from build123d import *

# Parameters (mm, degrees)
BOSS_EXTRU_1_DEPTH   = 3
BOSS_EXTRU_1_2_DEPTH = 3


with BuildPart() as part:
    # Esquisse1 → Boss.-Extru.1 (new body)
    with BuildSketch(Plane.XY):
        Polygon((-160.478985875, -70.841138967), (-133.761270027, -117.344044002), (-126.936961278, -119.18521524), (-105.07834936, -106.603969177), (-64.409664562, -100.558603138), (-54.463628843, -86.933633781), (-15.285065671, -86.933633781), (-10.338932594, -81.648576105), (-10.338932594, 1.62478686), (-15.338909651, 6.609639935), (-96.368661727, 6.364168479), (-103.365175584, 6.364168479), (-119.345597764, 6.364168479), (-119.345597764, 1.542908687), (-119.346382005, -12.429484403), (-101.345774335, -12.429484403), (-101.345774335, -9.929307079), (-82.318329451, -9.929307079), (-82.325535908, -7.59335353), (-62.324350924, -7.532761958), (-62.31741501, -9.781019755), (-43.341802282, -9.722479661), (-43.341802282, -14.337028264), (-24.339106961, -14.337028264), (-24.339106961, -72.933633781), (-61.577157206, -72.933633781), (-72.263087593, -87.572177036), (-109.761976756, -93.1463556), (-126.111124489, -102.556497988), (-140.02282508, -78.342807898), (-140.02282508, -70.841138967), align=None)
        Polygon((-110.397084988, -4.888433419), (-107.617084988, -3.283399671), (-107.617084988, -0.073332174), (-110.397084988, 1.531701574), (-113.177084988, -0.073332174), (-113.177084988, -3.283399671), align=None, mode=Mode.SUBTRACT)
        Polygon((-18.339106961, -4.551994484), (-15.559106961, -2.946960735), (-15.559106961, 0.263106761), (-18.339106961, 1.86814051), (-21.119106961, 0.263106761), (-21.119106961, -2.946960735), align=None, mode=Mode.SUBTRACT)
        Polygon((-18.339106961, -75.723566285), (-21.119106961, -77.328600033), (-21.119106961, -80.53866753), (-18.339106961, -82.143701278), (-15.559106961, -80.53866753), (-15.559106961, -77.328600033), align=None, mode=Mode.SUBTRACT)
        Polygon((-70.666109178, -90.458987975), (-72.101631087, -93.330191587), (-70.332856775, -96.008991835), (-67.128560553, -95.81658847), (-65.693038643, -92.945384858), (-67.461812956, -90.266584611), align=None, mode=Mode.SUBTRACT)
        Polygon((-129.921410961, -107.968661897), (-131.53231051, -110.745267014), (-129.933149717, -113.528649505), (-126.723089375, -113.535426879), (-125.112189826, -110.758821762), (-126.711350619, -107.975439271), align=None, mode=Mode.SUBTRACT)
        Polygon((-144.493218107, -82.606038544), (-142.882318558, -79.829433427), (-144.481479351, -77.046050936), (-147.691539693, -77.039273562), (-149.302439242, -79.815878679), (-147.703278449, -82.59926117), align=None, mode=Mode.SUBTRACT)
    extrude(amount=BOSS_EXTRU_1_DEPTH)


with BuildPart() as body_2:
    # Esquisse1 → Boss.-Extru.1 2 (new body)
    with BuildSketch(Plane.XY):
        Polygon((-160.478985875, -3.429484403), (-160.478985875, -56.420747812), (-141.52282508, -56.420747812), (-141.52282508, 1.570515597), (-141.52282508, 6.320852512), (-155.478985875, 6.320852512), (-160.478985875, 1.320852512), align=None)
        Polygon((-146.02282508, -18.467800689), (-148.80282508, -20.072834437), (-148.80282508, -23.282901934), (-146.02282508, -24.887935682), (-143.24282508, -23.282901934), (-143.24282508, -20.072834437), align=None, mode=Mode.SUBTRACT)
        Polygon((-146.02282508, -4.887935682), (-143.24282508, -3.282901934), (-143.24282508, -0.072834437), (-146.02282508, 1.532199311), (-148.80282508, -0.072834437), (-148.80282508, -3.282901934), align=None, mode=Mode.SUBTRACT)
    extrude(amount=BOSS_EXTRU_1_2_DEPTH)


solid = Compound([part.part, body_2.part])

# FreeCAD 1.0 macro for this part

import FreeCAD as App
import Part
import Sketcher
Q = App.Units.Quantity

doc = App.newDocument("Part")
body = doc.addObject("PartDesign::Body", "Body")

sketch1 = body.newObject("Sketcher::SketchObject", "Sketch")
sketch1.AttachmentSupport = (doc.getObject("XY_Plane"), [""])
sketch1.MapMode = "FlatFace"
sketch1.addGeometry([
    Part.LineSegment(App.Vector(-160.5, -70.8, 0), App.Vector(-133.8, -117.3, 0)),
    Part.LineSegment(App.Vector(-133.8, -117.3, 0), App.Vector(-126.9, -119.2, 0)),
    Part.LineSegment(App.Vector(-126.9, -119.2, 0), App.Vector(-105.1, -106.6, 0)),
    Part.LineSegment(App.Vector(-105.1, -106.6, 0), App.Vector(-64.4, -100.6, 0)),
    Part.LineSegment(App.Vector(-64.4, -100.6, 0), App.Vector(-54.5, -86.9, 0)),
    Part.LineSegment(App.Vector(-54.5, -86.9, 0), App.Vector(-15.3, -86.9, 0)),
    Part.LineSegment(App.Vector(-15.3, -86.9, 0), App.Vector(-10.3, -81.6, 0)),
    Part.LineSegment(App.Vector(-10.3, -81.6, 0), App.Vector(-10.3, 1.6, 0)),
    Part.LineSegment(App.Vector(-10.3, 1.6, 0), App.Vector(-15.3, 6.6, 0)),
    Part.LineSegment(App.Vector(-15.3, 6.6, 0), App.Vector(-96.4, 6.4, 0)),
    Part.LineSegment(App.Vector(-96.4, 6.4, 0), App.Vector(-119.3, 6.4, 0)),
    Part.LineSegment(App.Vector(-119.3, 6.4, 0), App.Vector(-119.3, 1.5, 0)),
    Part.LineSegment(App.Vector(-119.3, 1.5, 0), App.Vector(-119.3, -12.4, 0)),
    Part.LineSegment(App.Vector(-119.3, -12.4, 0), App.Vector(-101.3, -12.4, 0)),
    Part.LineSegment(App.Vector(-101.3, -12.4, 0), App.Vector(-101.3, -9.9, 0)),
    Part.LineSegment(App.Vector(-101.3, -9.9, 0), App.Vector(-82.3, -9.9, 0)),
    Part.LineSegment(App.Vector(-82.3, -9.9, 0), App.Vector(-82.3, -7.6, 0)),
    Part.LineSegment(App.Vector(-82.3, -7.6, 0), App.Vector(-62.3, -7.5, 0)),
    Part.LineSegment(App.Vector(-62.3, -7.5, 0), App.Vector(-62.3, -9.8, 0)),
    Part.LineSegment(App.Vector(-62.3, -9.8, 0), App.Vector(-43.3, -9.7, 0)),
    Part.LineSegment(App.Vector(-43.3, -9.7, 0), App.Vector(-43.3, -14.3, 0)),
    Part.LineSegment(App.Vector(-43.3, -14.3, 0), App.Vector(-24.3, -14.3, 0)),
    Part.LineSegment(App.Vector(-24.3, -14.3, 0), App.Vector(-24.3, -72.9, 0)),
    Part.LineSegment(App.Vector(-24.3, -72.9, 0), App.Vector(-61.6, -72.9, 0)),
    Part.LineSegment(App.Vector(-61.6, -72.9, 0), App.Vector(-72.3, -87.6, 0)),
    Part.LineSegment(App.Vector(-72.3, -87.6, 0), App.Vector(-109.8, -93.1, 0)),
    Part.LineSegment(App.Vector(-109.8, -93.1, 0), App.Vector(-126.1, -102.6, 0)),
    Part.LineSegment(App.Vector(-126.1, -102.6, 0), App.Vector(-140, -78.3, 0)),
    Part.LineSegment(App.Vector(-140, -78.3, 0), App.Vector(-140, -70.8, 0)),
    Part.LineSegment(App.Vector(-140, -70.8, 0), App.Vector(-160.5, -70.8, 0)),
    Part.LineSegment(App.Vector(-131.5, -110.7, 0), App.Vector(-129.9, -108, 0)),
    Part.LineSegment(App.Vector(-129.9, -108, 0), App.Vector(-126.7, -108, 0)),
    Part.LineSegment(App.Vector(-126.7, -108, 0), App.Vector(-125.1, -110.8, 0)),
    Part.LineSegment(App.Vector(-125.1, -110.8, 0), App.Vector(-126.7, -113.5, 0)),
    Part.LineSegment(App.Vector(-126.7, -113.5, 0), App.Vector(-129.9, -113.5, 0)),
    Part.LineSegment(App.Vector(-129.9, -113.5, 0), App.Vector(-131.5, -110.7, 0)),
    Part.LineSegment(App.Vector(-142.9, -79.8, 0), App.Vector(-144.5, -82.6, 0)),
    Part.LineSegment(App.Vector(-144.5, -82.6, 0), App.Vector(-147.7, -82.6, 0)),
    Part.LineSegment(App.Vector(-147.7, -82.6, 0), App.Vector(-149.3, -79.8, 0)),
    Part.LineSegment(App.Vector(-149.3, -79.8, 0), App.Vector(-147.7, -77, 0)),
    Part.LineSegment(App.Vector(-147.7, -77, 0), App.Vector(-144.5, -77, 0)),
    Part.LineSegment(App.Vector(-144.5, -77, 0), App.Vector(-142.9, -79.8, 0)),
    Part.LineSegment(App.Vector(-72.1, -93.3, 0), App.Vector(-70.7, -90.5, 0)),
    Part.LineSegment(App.Vector(-70.7, -90.5, 0), App.Vector(-67.5, -90.3, 0)),
    Part.LineSegment(App.Vector(-67.5, -90.3, 0), App.Vector(-65.7, -92.9, 0)),
    Part.LineSegment(App.Vector(-65.7, -92.9, 0), App.Vector(-67.1, -95.8, 0)),
    Part.LineSegment(App.Vector(-67.1, -95.8, 0), App.Vector(-70.3, -96, 0)),
    Part.LineSegment(App.Vector(-70.3, -96, 0), App.Vector(-72.1, -93.3, 0)),
    Part.LineSegment(App.Vector(-21.1, -77.3, 0), App.Vector(-18.3, -75.7, 0)),
    Part.LineSegment(App.Vector(-18.3, -75.7, 0), App.Vector(-15.6, -77.3, 0)),
    Part.LineSegment(App.Vector(-15.6, -77.3, 0), App.Vector(-15.6, -80.5, 0)),
    Part.LineSegment(App.Vector(-15.6, -80.5, 0), App.Vector(-18.3, -82.1, 0)),
    Part.LineSegment(App.Vector(-18.3, -82.1, 0), App.Vector(-21.1, -80.5, 0)),
    Part.LineSegment(App.Vector(-21.1, -80.5, 0), App.Vector(-21.1, -77.3, 0)),
    Part.LineSegment(App.Vector(-107.6, -3.3, 0), App.Vector(-110.4, -4.9, 0)),
    Part.LineSegment(App.Vector(-110.4, -4.9, 0), App.Vector(-113.2, -3.3, 0)),
    Part.LineSegment(App.Vector(-113.2, -3.3, 0), App.Vector(-113.2, -0.1, 0)),
    Part.LineSegment(App.Vector(-113.2, -0.1, 0), App.Vector(-110.4, 1.5, 0)),
    Part.LineSegment(App.Vector(-110.4, 1.5, 0), App.Vector(-107.6, -0.1, 0)),
    Part.LineSegment(App.Vector(-107.6, -0.1, 0), App.Vector(-107.6, -3.3, 0)),
    Part.LineSegment(App.Vector(-15.6, -2.9, 0), App.Vector(-18.3, -4.6, 0)),
    Part.LineSegment(App.Vector(-18.3, -4.6, 0), App.Vector(-21.1, -2.9, 0)),
    Part.LineSegment(App.Vector(-21.1, -2.9, 0), App.Vector(-21.1, 0.3, 0)),
    Part.LineSegment(App.Vector(-21.1, 0.3, 0), App.Vector(-18.3, 1.9, 0)),
    Part.LineSegment(App.Vector(-18.3, 1.9, 0), App.Vector(-15.6, 0.3, 0)),
    Part.LineSegment(App.Vector(-15.6, 0.3, 0), App.Vector(-15.6, -2.9, 0)),
], False)
sketch1.addConstraint([
    Sketcher.Constraint("Coincident", 0, 2, 1, 1),
    Sketcher.Constraint("Coincident", 1, 2, 2, 1),
    Sketcher.Constraint("Coincident", 2, 2, 3, 1),
    Sketcher.Constraint("Coincident", 3, 2, 4, 1),
    Sketcher.Constraint("Coincident", 4, 2, 5, 1),
    Sketcher.Constraint("Coincident", 5, 2, 6, 1),
    Sketcher.Constraint("Coincident", 6, 2, 7, 1),
    Sketcher.Constraint("Coincident", 7, 2, 8, 1),
    Sketcher.Constraint("Coincident", 8, 2, 9, 1),
    Sketcher.Constraint("Coincident", 9, 2, 10, 1),
    Sketcher.Constraint("Coincident", 10, 2, 11, 1),
    Sketcher.Constraint("Coincident", 11, 2, 12, 1),
    Sketcher.Constraint("Coincident", 12, 2, 13, 1),
    Sketcher.Constraint("Coincident", 13, 2, 14, 1),
    Sketcher.Constraint("Coincident", 14, 2, 15, 1),
    Sketcher.Constraint("Coincident", 15, 2, 16, 1),
    Sketcher.Constraint("Coincident", 16, 2, 17, 1),
    Sketcher.Constraint("Coincident", 17, 2, 18, 1),
    Sketcher.Constraint("Coincident", 18, 2, 19, 1),
    Sketcher.Constraint("Coincident", 19, 2, 20, 1),
    Sketcher.Constraint("Coincident", 20, 2, 21, 1),
    Sketcher.Constraint("Coincident", 21, 2, 22, 1),
    Sketcher.Constraint("Coincident", 22, 2, 23, 1),
    Sketcher.Constraint("Coincident", 23, 2, 24, 1),
    Sketcher.Constraint("Coincident", 24, 2, 25, 1),
    Sketcher.Constraint("Coincident", 25, 2, 26, 1),
    Sketcher.Constraint("Coincident", 26, 2, 27, 1),
    Sketcher.Constraint("Coincident", 27, 2, 28, 1),
    Sketcher.Constraint("Coincident", 28, 2, 29, 1),
    Sketcher.Constraint("Coincident", 29, 2, 0, 1),
    Sketcher.Constraint("Coincident", 30, 2, 31, 1),
    Sketcher.Constraint("Coincident", 31, 2, 32, 1),
    Sketcher.Constraint("Coincident", 32, 2, 33, 1),
    Sketcher.Constraint("Coincident", 33, 2, 34, 1),
    Sketcher.Constraint("Coincident", 34, 2, 35, 1),
    Sketcher.Constraint("Coincident", 35, 2, 30, 1),
    Sketcher.Constraint("Coincident", 36, 2, 37, 1),
    Sketcher.Constraint("Coincident", 37, 2, 38, 1),
    Sketcher.Constraint("Coincident", 38, 2, 39, 1),
    Sketcher.Constraint("Coincident", 39, 2, 40, 1),
    Sketcher.Constraint("Coincident", 40, 2, 41, 1),
    Sketcher.Constraint("Coincident", 41, 2, 36, 1),
    Sketcher.Constraint("Coincident", 42, 2, 43, 1),
    Sketcher.Constraint("Coincident", 43, 2, 44, 1),
    Sketcher.Constraint("Coincident", 44, 2, 45, 1),
    Sketcher.Constraint("Coincident", 45, 2, 46, 1),
    Sketcher.Constraint("Coincident", 46, 2, 47, 1),
    Sketcher.Constraint("Coincident", 47, 2, 42, 1),
    Sketcher.Constraint("Coincident", 48, 2, 49, 1),
    Sketcher.Constraint("Coincident", 49, 2, 50, 1),
    Sketcher.Constraint("Coincident", 50, 2, 51, 1),
    Sketcher.Constraint("Coincident", 51, 2, 52, 1),
    Sketcher.Constraint("Coincident", 52, 2, 53, 1),
    Sketcher.Constraint("Coincident", 53, 2, 48, 1),
    Sketcher.Constraint("Coincident", 54, 2, 55, 1),
    Sketcher.Constraint("Coincident", 55, 2, 56, 1),
    Sketcher.Constraint("Coincident", 56, 2, 57, 1),
    Sketcher.Constraint("Coincident", 57, 2, 58, 1),
    Sketcher.Constraint("Coincident", 58, 2, 59, 1),
    Sketcher.Constraint("Coincident", 59, 2, 54, 1),
    Sketcher.Constraint("Coincident", 60, 2, 61, 1),
    Sketcher.Constraint("Coincident", 61, 2, 62, 1),
    Sketcher.Constraint("Coincident", 62, 2, 63, 1),
    Sketcher.Constraint("Coincident", 63, 2, 64, 1),
    Sketcher.Constraint("Coincident", 64, 2, 65, 1),
    Sketcher.Constraint("Coincident", 65, 2, 60, 1),
    Sketcher.Constraint("Horizontal", 5),
    Sketcher.Constraint("Vertical", 7),
    Sketcher.Constraint("Horizontal", 10),
    Sketcher.Constraint("Vertical", 11),
    Sketcher.Constraint("Horizontal", 13),
    Sketcher.Constraint("Vertical", 14),
    Sketcher.Constraint("Horizontal", 15),
    Sketcher.Constraint("Vertical", 20),
    Sketcher.Constraint("Horizontal", 21),
    Sketcher.Constraint("Vertical", 22),
    Sketcher.Constraint("Horizontal", 23),
    Sketcher.Constraint("Vertical", 28),
    Sketcher.Constraint("Horizontal", 29),
    Sketcher.Constraint("Vertical", 50),
    Sketcher.Constraint("Vertical", 53),
    Sketcher.Constraint("Vertical", 56),
    Sketcher.Constraint("Vertical", 59),
    Sketcher.Constraint("Vertical", 62),
    Sketcher.Constraint("Vertical", 65),
    Sketcher.Constraint("Parallel", 9, 17),
    Sketcher.Constraint("Parallel", 16, 18),
    Sketcher.Constraint("Perpendicular", 18, 19),
    Sketcher.Constraint("Parallel", 4, 24),
    Sketcher.Constraint("Parallel", 3, 25),
    Sketcher.Constraint("Parallel", 2, 26),
    Sketcher.Constraint("Parallel", 0, 27),
    Sketcher.Constraint("Parallel", 27, 32),
    Sketcher.Constraint("Parallel", 30, 33),
    Sketcher.Constraint("Parallel", 31, 34),
    Sketcher.Constraint("Parallel", 32, 35),
    Sketcher.Constraint("Parallel", 33, 36),
    Sketcher.Constraint("Parallel", 34, 37),
    Sketcher.Constraint("Parallel", 35, 38),
    Sketcher.Constraint("Parallel", 36, 39),
    Sketcher.Constraint("Parallel", 37, 40),
    Sketcher.Constraint("Parallel", 38, 41),
    Sketcher.Constraint("Parallel", 42, 45),
    Sketcher.Constraint("Parallel", 43, 46),
    Sketcher.Constraint("Parallel", 44, 47),
    Sketcher.Constraint("Parallel", 48, 51),
    Sketcher.Constraint("Parallel", 49, 52),
    Sketcher.Constraint("Parallel", 51, 54),
    Sketcher.Constraint("Parallel", 52, 55),
    Sketcher.Constraint("Parallel", 54, 57),
    Sketcher.Constraint("Parallel", 55, 58),
    Sketcher.Constraint("Parallel", 57, 60),
    Sketcher.Constraint("Parallel", 58, 61),
    Sketcher.Constraint("Parallel", 60, 63),
    Sketcher.Constraint("Parallel", 61, 64),
    Sketcher.Constraint("Horizontal", 50, 2, 52, 2),
    Sketcher.Constraint("Horizontal", 49, 2, 53, 2),
    Sketcher.Constraint("Horizontal", 56, 2, 58, 2),
    Sketcher.Constraint("Horizontal", 55, 2, 59, 2),
    Sketcher.Constraint("Horizontal", 62, 2, 64, 2),
    Sketcher.Constraint("Horizontal", 61, 2, 65, 2),
    Sketcher.Constraint("Vertical", 48, 2, 51, 2),
    Sketcher.Constraint("Vertical", 51, 2, 60, 2),
    Sketcher.Constraint("Vertical", 53, 2, 61, 2),
    Sketcher.Constraint("Equal", 53, 56),
    Sketcher.Constraint("Equal", 59, 62),
    Sketcher.Constraint("Equal", 30, 31),
    Sketcher.Constraint("Equal", 31, 32),
    Sketcher.Constraint("Equal", 32, 33),
    Sketcher.Constraint("Equal", 35, 36),
    Sketcher.Constraint("Equal", 36, 37),
    Sketcher.Constraint("Equal", 37, 38),
    Sketcher.Constraint("Equal", 38, 39),
    Sketcher.Constraint("Equal", 41, 42),
    Sketcher.Constraint("Equal", 42, 43),
    Sketcher.Constraint("Equal", 43, 44),
    Sketcher.Constraint("Equal", 44, 45),
    Sketcher.Constraint("Equal", 47, 48),
    Sketcher.Constraint("Equal", 52, 54),
    Sketcher.Constraint("Angle", 48, Q("30 deg")),
    Sketcher.Constraint("DistanceX", 23, 2, 23, 1, Q("37.23805 mm")),
    Sketcher.Constraint("DistanceX", 29, 2, 29, 1, Q("20.456161 mm")),
    Sketcher.Constraint("DistanceY", 11, 2, 11, 1, Q("4.82126 mm")),
    Sketcher.Constraint("DistanceY", 20, 2, 20, 1, Q("4.614549 mm")),
    Sketcher.Constraint("DistanceY", 28, 1, 28, 2, Q("7.501669 mm")),
    Sketcher.Constraint("DistanceY", 49, 2, -1, 1, Q("77.3286 mm")),
    Sketcher.Constraint("DistanceY", 51, 2, -1, 1, Q("82.143701 mm")),
    Sketcher.Constraint("DistanceY", 55, 2, -1, 1, Q("3.2834 mm")),
    Sketcher.Constraint("Distance", 2, Q("25.220759 mm")),
    Sketcher.Constraint("Distance", 3, Q("41.115549 mm")),
    Sketcher.Constraint("Distance", 8, Q("7.060349 mm")),
    Sketcher.Constraint("Distance", 18, Q("2.248268 mm")),
    Sketcher.Constraint("Distance", 24, Q("18.123908 mm")),
    Sketcher.Constraint("DistanceX", 5, 1, 5, 2, Q("39.178563 mm")),
    Sketcher.Constraint("DistanceX", 10, 2, 10, 1, Q("22.976936 mm")),
    Sketcher.Constraint("DistanceX", 13, 1, 13, 2, Q("18.000608 mm")),
    Sketcher.Constraint("DistanceX", 15, 1, 15, 2, Q("19.027445 mm")),
    Sketcher.Constraint("DistanceX", 21, 1, 21, 2, Q("19.002695 mm")),
    Sketcher.Constraint("DistanceY", 7, 1, 7, 2, Q("83.273363 mm")),
    Sketcher.Constraint("DistanceY", 14, 1, 14, 2, Q("2.500177 mm")),
    Sketcher.Constraint("DistanceY", 22, 2, 22, 1, Q("58.596606 mm")),
    Sketcher.Constraint("DistanceY", 50, 2, 50, 1, Q("3.210067 mm")),
    Sketcher.Constraint("DistanceX", 0, 2, -1, 1, Q("133.76127 mm")),
    Sketcher.Constraint("DistanceX", 1, 2, -1, 1, Q("126.936961 mm")),
    Sketcher.Constraint("DistanceX", 2, 2, -1, 1, Q("105.078349 mm")),
    Sketcher.Constraint("DistanceY", 2, 2, -1, 1, Q("106.603969 mm")),
    Sketcher.Constraint("DistanceX", 4, 2, -1, 1, Q("54.463629 mm")),
    Sketcher.Constraint("DistanceX", 8, 2, -1, 1, Q("15.33891 mm")),
    Sketcher.Constraint("DistanceY", -1, 1, 8, 2, Q("6.60964 mm")),
    Sketcher.Constraint("DistanceX", 9, 2, -1, 1, Q("96.368662 mm")),
    Sketcher.Constraint("DistanceY", -1, 1, 9, 2, Q("6.364168 mm")),
    Sketcher.Constraint("DistanceX", 15, 2, -1, 1, Q("82.318329 mm")),
    Sketcher.Constraint("DistanceX", 17, 2, -1, 1, Q("62.324351 mm")),
    Sketcher.Constraint("DistanceY", 17, 2, -1, 1, Q("7.532762 mm")),
    Sketcher.Constraint("DistanceY", 19, 2, -1, 1, Q("9.72248 mm")),
    Sketcher.Constraint("DistanceY", 28, 2, -1, 1, Q("70.841139 mm")),
    Sketcher.Constraint("DistanceX", 30, 2, -1, 1, Q("129.921411 mm")),
    Sketcher.Constraint("DistanceY", 30, 2, -1, 1, Q("107.968662 mm")),
    Sketcher.Constraint("DistanceY", 31, 2, -1, 1, Q("107.975439 mm")),
    Sketcher.Constraint("DistanceX", 32, 2, -1, 1, Q("125.11219 mm")),
    Sketcher.Constraint("DistanceX", 33, 2, -1, 1, Q("126.723089 mm")),
    Sketcher.Constraint("DistanceX", 36, 2, -1, 1, Q("144.493218 mm")),
    Sketcher.Constraint("DistanceY", 36, 2, -1, 1, Q("82.606039 mm")),
    Sketcher.Constraint("DistanceX", 42, 2, -1, 1, Q("70.666109 mm")),
    Sketcher.Constraint("DistanceX", 44, 2, -1, 1, Q("65.693039 mm")),
    Sketcher.Constraint("DistanceX", 45, 2, -1, 1, Q("67.128561 mm")),
    Sketcher.Constraint("DistanceY", 45, 2, -1, 1, Q("95.816588 mm")),
    Sketcher.Constraint("DistanceY", 46, 2, -1, 1, Q("96.008992 mm")),
    Sketcher.Constraint("DistanceY", 61, 2, -1, 1, Q("2.946961 mm")),
    Sketcher.Constraint("Distance", 0, Q("53.631675 mm")),
    Sketcher.Constraint("Distance", 4, Q("16.869008 mm")),
    Sketcher.Constraint("Distance", 6, Q("7.238513 mm")),
    Sketcher.Constraint("Distance", 12, Q("13.972393 mm")),
    Sketcher.Constraint("Distance", 19, Q("18.975703 mm")),
    Sketcher.Constraint("Distance", 25, Q("37.910924 mm")),
    Sketcher.Constraint("Distance", 26, Q("18.863865 mm")),
    Sketcher.Constraint("DistanceX", 48, 2, -1, 1, Q("18.339107 mm")),
    Sketcher.Constraint("DistanceX", 54, 2, -1, 1, Q("110.397085 mm")),
])
pad1 = body.newObject("PartDesign::Pad", "Pad")
pad1.Profile = sketch1
pad1.Length = 3
body2 = doc.addObject("PartDesign::Body", "Body001")

sketch2 = body2.newObject("Sketcher::SketchObject", "Sketch001")
sketch2.AttachmentSupport = (doc.getObject("XY_Plane001"), [""])
sketch2.MapMode = "FlatFace"
sketch2.addGeometry([
    Part.LineSegment(App.Vector(-160.5, -56.4, 0), App.Vector(-141.5, -56.4, 0)),
    Part.LineSegment(App.Vector(-141.5, -56.4, 0), App.Vector(-141.5, 6.3, 0)),
    Part.LineSegment(App.Vector(-141.5, 6.3, 0), App.Vector(-155.5, 6.3, 0)),
    Part.LineSegment(App.Vector(-155.5, 6.3, 0), App.Vector(-160.5, 1.3, 0)),
    Part.LineSegment(App.Vector(-160.5, 1.3, 0), App.Vector(-160.5, -56.4, 0)),
    Part.LineSegment(App.Vector(-148.8, -20.1, 0), App.Vector(-146, -18.5, 0)),
    Part.LineSegment(App.Vector(-146, -18.5, 0), App.Vector(-143.2, -20.1, 0)),
    Part.LineSegment(App.Vector(-143.2, -20.1, 0), App.Vector(-143.2, -23.3, 0)),
    Part.LineSegment(App.Vector(-143.2, -23.3, 0), App.Vector(-146, -24.9, 0)),
    Part.LineSegment(App.Vector(-146, -24.9, 0), App.Vector(-148.8, -23.3, 0)),
    Part.LineSegment(App.Vector(-148.8, -23.3, 0), App.Vector(-148.8, -20.1, 0)),
    Part.LineSegment(App.Vector(-143.2, -3.3, 0), App.Vector(-146, -4.9, 0)),
    Part.LineSegment(App.Vector(-146, -4.9, 0), App.Vector(-148.8, -3.3, 0)),
    Part.LineSegment(App.Vector(-148.8, -3.3, 0), App.Vector(-148.8, -0.1, 0)),
    Part.LineSegment(App.Vector(-148.8, -0.1, 0), App.Vector(-146, 1.5, 0)),
    Part.LineSegment(App.Vector(-146, 1.5, 0), App.Vector(-143.2, -0.1, 0)),
    Part.LineSegment(App.Vector(-143.2, -0.1, 0), App.Vector(-143.2, -3.3, 0)),
], False)
sketch2.addConstraint([
    Sketcher.Constraint("Coincident", 0, 2, 1, 1),
    Sketcher.Constraint("Coincident", 1, 2, 2, 1),
    Sketcher.Constraint("Coincident", 2, 2, 3, 1),
    Sketcher.Constraint("Coincident", 3, 2, 4, 1),
    Sketcher.Constraint("Coincident", 4, 2, 0, 1),
    Sketcher.Constraint("Coincident", 5, 2, 6, 1),
    Sketcher.Constraint("Coincident", 6, 2, 7, 1),
    Sketcher.Constraint("Coincident", 7, 2, 8, 1),
    Sketcher.Constraint("Coincident", 8, 2, 9, 1),
    Sketcher.Constraint("Coincident", 9, 2, 10, 1),
    Sketcher.Constraint("Coincident", 10, 2, 5, 1),
    Sketcher.Constraint("Coincident", 11, 2, 12, 1),
    Sketcher.Constraint("Coincident", 12, 2, 13, 1),
    Sketcher.Constraint("Coincident", 13, 2, 14, 1),
    Sketcher.Constraint("Coincident", 14, 2, 15, 1),
    Sketcher.Constraint("Coincident", 15, 2, 16, 1),
    Sketcher.Constraint("Coincident", 16, 2, 11, 1),
    Sketcher.Constraint("Horizontal", 0),
    Sketcher.Constraint("Vertical", 1),
    Sketcher.Constraint("Horizontal", 2),
    Sketcher.Constraint("Vertical", 4),
    Sketcher.Constraint("Vertical", 7),
    Sketcher.Constraint("Vertical", 10),
    Sketcher.Constraint("Vertical", 13),
    Sketcher.Constraint("Vertical", 16),
    Sketcher.Constraint("Parallel", 5, 8),
    Sketcher.Constraint("Parallel", 6, 9),
    Sketcher.Constraint("Parallel", 8, 11),
    Sketcher.Constraint("Parallel", 9, 12),
    Sketcher.Constraint("Parallel", 11, 14),
    Sketcher.Constraint("Parallel", 12, 15),
    Sketcher.Constraint("Horizontal", 7, 2, 9, 2),
    Sketcher.Constraint("Horizontal", 6, 2, 10, 2),
    Sketcher.Constraint("Horizontal", 13, 2, 15, 2),
    Sketcher.Constraint("Horizontal", 12, 2, 16, 2),
    Sketcher.Constraint("Vertical", 5, 2, 8, 2),
    Sketcher.Constraint("Vertical", 8, 2, 11, 2),
    Sketcher.Constraint("Vertical", 10, 2, 12, 2),
    Sketcher.Constraint("Equal", 10, 13),
    Sketcher.Constraint("Angle", 3, Q("-135 deg")),
    Sketcher.Constraint("Angle", 5, Q("30 deg")),
    Sketcher.Constraint("DistanceX", 3, 2, 2, 2, Q("5 mm")),
    Sketcher.Constraint("DistanceX", 5, 2, 1, 2, Q("4.5 mm")),
    Sketcher.Constraint("DistanceX", 5, 2, 6, 2, Q("2.78 mm")),
    Sketcher.Constraint("DistanceY", 1, 1, 1, 2, Q("62.7416 mm")),
    Sketcher.Constraint("DistanceX", 0, 1, 0, 2, Q("18.956161 mm")),
    Sketcher.Constraint("DistanceY", 5, 2, -1, 1, Q("18.467801 mm")),
    Sketcher.Constraint("DistanceY", 7, 2, -1, 1, Q("23.282902 mm")),
    Sketcher.Constraint("DistanceY", 12, 2, -1, 1, Q("3.282902 mm")),
    Sketcher.Constraint("DistanceY", 8, 2, 3, 2, Q("26.208788 mm")),
    Sketcher.Constraint("DistanceX", 0, 2, -1, 1, Q("141.522825 mm")),
])
pad2 = body2.newObject("PartDesign::Pad", "Pad001")
pad2.Profile = sketch2
pad2.Length = 3

doc.recompute()
